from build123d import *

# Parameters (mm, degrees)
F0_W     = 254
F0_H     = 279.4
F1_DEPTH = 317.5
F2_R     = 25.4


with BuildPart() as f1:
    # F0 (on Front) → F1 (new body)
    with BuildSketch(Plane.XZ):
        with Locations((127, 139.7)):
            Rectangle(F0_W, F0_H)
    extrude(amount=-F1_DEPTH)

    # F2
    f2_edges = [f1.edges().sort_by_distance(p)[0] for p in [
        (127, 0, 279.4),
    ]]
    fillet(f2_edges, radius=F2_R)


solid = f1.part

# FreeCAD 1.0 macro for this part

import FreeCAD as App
import Part
import Sketcher

V = App.Vector
Q = App.Units.Quantity


def edges_at(feature, points):
    """Names of the edges that pass closest to the given points."""
    edges = feature.Shape.Edges
    near = lambda p: min(range(len(edges)), key=lambda i: edges[i].distToShape(Part.Vertex(*p))[0])
    return sorted({f"Edge{near(p) + 1}" for p in points})


def add_polygon(sketch, points):
    """Adds a closed chain of lines whose ends are joined by coincident constraints."""
    first, n = sketch.GeometryCount, len(points)
    for a, b in zip(points, points[1:] + points[:1]):
        sketch.addGeometry(Part.LineSegment(App.Vector(*a, 0), App.Vector(*b, 0)), False)
    for i in range(n):
        sketch.addConstraint(Sketcher.Constraint("Coincident", first + i, 2, first + (i + 1) % n, 1))

doc = App.newDocument("Part")
params = doc.addObject("Spreadsheet::Sheet", "Params")
for row, (alias, value) in enumerate([
    ("sketch1_width", "10 in"),
    ("sketch1_height", "11 in"),
    ("pad1_length", "12.5 in"),
    ("fillet_radius", "1 in"),
], start=1):
    params.set(f"A{row}", alias)
    params.set(f"B{row}", "=" + value)
    params.setAlias(f"B{row}", alias)

body = doc.addObject("PartDesign::Body", "Body")

# Sketch on XZ plane
sketch1 = body.newObject("Sketcher::SketchObject", "Sketch")
sketch1.AttachmentSupport = (doc.getObject("XZ_Plane"), [""])
sketch1.MapMode = "FlatFace"
add_polygon(sketch1, [(0, 279), (0, 0), (254, 0), (254, 279)])  # lines 0-3
sketch1.addConstraint([
    Sketcher.Constraint("Vertical", 0),
    Sketcher.Constraint("Horizontal", 1),
    Sketcher.Constraint("Vertical", 2),
    Sketcher.Constraint("Horizontal", 3),
    Sketcher.Constraint("Coincident", 0, 2, -1, 1),
    Sketcher.Constraint("DistanceX", 1, 1, 1, 2, Q("10 in")),
    Sketcher.Constraint("DistanceY", 0, 2, 0, 1, Q("11 in")),
])
sketch1.setExpression("Constraints[9]", "Params.sketch1_width")
sketch1.setExpression("Constraints[10]", "Params.sketch1_height")
pad1 = body.newObject("PartDesign::Pad", "Pad")
pad1.Profile = sketch1
pad1.setExpression("Length", "Params.pad1_length")
pad1.Reversed = True
doc.recompute()

fillet = body.newObject("PartDesign::Fillet", "Fillet")
fillet.Base = (pad1, edges_at(pad1, [(127, 0, 279.4)]))
fillet.setExpression("Radius", "Params.fillet_radius")

doc.recompute()
